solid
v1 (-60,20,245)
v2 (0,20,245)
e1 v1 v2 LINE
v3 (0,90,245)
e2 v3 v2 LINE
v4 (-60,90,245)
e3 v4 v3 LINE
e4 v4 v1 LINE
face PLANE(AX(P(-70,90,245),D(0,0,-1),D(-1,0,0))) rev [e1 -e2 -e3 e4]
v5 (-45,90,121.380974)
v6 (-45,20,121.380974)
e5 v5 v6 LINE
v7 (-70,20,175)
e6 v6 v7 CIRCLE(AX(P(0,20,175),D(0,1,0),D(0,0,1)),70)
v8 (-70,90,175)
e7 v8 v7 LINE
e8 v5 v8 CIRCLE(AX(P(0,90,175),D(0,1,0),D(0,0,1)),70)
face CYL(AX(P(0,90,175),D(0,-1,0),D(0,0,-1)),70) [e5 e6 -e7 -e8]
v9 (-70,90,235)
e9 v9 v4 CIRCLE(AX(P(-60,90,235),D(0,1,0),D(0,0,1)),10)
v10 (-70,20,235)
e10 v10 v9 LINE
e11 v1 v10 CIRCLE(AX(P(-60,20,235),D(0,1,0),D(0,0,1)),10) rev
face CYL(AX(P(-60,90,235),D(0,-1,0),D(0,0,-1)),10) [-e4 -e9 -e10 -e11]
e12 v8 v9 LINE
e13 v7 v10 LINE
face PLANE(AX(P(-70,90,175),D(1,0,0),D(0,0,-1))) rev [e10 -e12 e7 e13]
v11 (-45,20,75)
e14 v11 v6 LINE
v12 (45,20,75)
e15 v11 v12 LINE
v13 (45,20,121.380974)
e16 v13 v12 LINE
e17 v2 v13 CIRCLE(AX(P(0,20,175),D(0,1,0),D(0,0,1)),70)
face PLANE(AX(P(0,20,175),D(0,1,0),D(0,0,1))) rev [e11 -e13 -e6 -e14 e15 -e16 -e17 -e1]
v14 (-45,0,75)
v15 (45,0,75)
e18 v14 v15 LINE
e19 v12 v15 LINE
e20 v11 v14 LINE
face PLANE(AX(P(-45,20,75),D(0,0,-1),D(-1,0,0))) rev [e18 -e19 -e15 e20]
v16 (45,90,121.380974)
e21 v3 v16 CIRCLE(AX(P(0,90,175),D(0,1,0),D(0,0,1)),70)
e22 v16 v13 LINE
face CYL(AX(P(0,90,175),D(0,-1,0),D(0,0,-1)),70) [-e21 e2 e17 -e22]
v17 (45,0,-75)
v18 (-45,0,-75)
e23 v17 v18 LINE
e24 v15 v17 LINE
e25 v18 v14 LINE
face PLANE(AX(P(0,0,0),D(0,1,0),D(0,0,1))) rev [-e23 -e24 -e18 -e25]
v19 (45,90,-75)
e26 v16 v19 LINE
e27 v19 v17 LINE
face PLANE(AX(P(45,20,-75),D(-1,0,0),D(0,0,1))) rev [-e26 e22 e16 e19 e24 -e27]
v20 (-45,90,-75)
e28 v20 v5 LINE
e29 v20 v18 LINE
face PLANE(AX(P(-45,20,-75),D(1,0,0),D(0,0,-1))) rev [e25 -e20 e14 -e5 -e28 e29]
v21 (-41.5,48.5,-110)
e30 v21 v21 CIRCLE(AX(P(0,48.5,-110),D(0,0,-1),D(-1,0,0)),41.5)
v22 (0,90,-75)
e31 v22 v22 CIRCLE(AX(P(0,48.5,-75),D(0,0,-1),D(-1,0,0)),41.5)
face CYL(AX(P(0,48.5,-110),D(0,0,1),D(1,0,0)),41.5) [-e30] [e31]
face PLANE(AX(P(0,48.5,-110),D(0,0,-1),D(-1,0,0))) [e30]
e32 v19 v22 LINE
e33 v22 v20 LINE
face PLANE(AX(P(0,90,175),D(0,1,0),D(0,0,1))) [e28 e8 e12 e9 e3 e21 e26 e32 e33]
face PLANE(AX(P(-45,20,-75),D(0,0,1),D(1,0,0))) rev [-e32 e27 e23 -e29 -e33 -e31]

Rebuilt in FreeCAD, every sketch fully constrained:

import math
import FreeCAD as App
import Part
import Sketcher


def edges_at(feature, points):
    """Names of the edges that pass closest to the given points."""
    edges = feature.Shape.Edges
    near = lambda p: min(range(len(edges)), key=lambda i: edges[i].distToShape(Part.Vertex(*p))[0])
    return sorted({f"Edge{near(p) + 1}" for p in points})

doc = App.newDocument("Part")
body = doc.addObject("PartDesign::Body", "Body")

# Sketch on XZ plane
sketch1 = body.newObject("Sketcher::SketchObject", "Sketch")
sketch1.AttachmentSupport = (doc.getObject("XZ_Plane"), [""])
sketch1.MapMode = "FlatFace"
sketch1.addGeometry(Part.LineSegment(App.Vector(-45, -75, 0), App.Vector(-45, 75, 0)), False)
sketch1.addGeometry(Part.LineSegment(App.Vector(-45, 75, 0), App.Vector(45, 75, 0)), False)
sketch1.addGeometry(Part.LineSegment(App.Vector(45, 75, 0), App.Vector(45, -75, 0)), False)
sketch1.addGeometry(Part.LineSegment(App.Vector(45, -75, 0), App.Vector(-45, -75, 0)), False)
sketch1.addConstraint(Sketcher.Constraint("Coincident", 0, 2, 1, 1))
sketch1.addConstraint(Sketcher.Constraint("Coincident", 1, 2, 2, 1))
sketch1.addConstraint(Sketcher.Constraint("Coincident", 2, 2, 3, 1))
sketch1.addConstraint(Sketcher.Constraint("Coincident", 3, 2, 0, 1))
sketch1.addConstraint(Sketcher.Constraint("Vertical", 0))
sketch1.addConstraint(Sketcher.Constraint("Horizontal", 1))
sketch1.addConstraint(Sketcher.Constraint("Vertical", 2))
sketch1.addConstraint(Sketcher.Constraint("Horizontal", 3))
sketch1.addConstraint(Sketcher.Constraint("Symmetric", 0, 2, 2, 2, -1, 1))
sketch1.addConstraint(Sketcher.Constraint("DistanceX", 1, 1, 1, 2, 90.0))
sketch1.addConstraint(Sketcher.Constraint("DistanceY", 0, 1, 0, 2, 150.0))
pad1 = body.newObject("PartDesign::Pad", "Pad")
pad1.Profile = sketch1
pad1.Length = 20
pad1.Reversed = True

# Sketch on XZ plane
sketch2 = body.newObject("Sketcher::SketchObject", "Sketch001")
sketch2.AttachmentSupport = (doc.getObject("XZ_Plane"), [""])
sketch2.MapMode = "FlatFace"
sketch2.AttachmentOffset = App.Placement(App.Vector(0, 0, -20), App.Rotation())
sketch2.addGeometry(Part.LineSegment(App.Vector(45, -75, 0), App.Vector(-45, -75, 0)), False)
sketch2.addGeometry(Part.LineSegment(App.Vector(-45, -75, 0), App.Vector(-45, 121, 0)), False)
sketch2.addGeometry(Part.ArcOfCircle(Part.Circle(App.Vector(0, 175, 0), App.Vector(0, 0, 1), 70), math.radians(-180), math.radians(-130)), False)
sketch2.addGeometry(Part.LineSegment(App.Vector(-70, 175, 0), App.Vector(-70, 245, 0)), False)
sketch2.addGeometry(Part.LineSegment(App.Vector(-70, 245, 0), App.Vector(0, 245, 0)), False)
sketch2.addGeometry(Part.ArcOfCircle(Part.Circle(App.Vector(0, 175, 0), App.Vector(0, 0, 1), 70), math.radians(-50), math.radians(90)), False)
sketch2.addGeometry(Part.LineSegment(App.Vector(45, 121, 0), App.Vector(45, -75, 0)), False)
sketch2.addConstraint(Sketcher.Constraint("Coincident", 0, 2, 1, 1))
sketch2.addConstraint(Sketcher.Constraint("Coincident", 1, 2, 2, 2))
sketch2.addConstraint(Sketcher.Constraint("Tangent", 2, 1, 3, 1))
sketch2.addConstraint(Sketcher.Constraint("Coincident", 3, 2, 4, 1))
sketch2.addConstraint(Sketcher.Constraint("Tangent", 4, 2, 5, 2))
sketch2.addConstraint(Sketcher.Constraint("Coincident", 5, 1, 6, 1))
sketch2.addConstraint(Sketcher.Constraint("Coincident", 6, 2, 0, 1))
sketch2.addConstraint(Sketcher.Constraint("Horizontal", 0))
sketch2.addConstraint(Sketcher.Constraint("Vertical", 1))
sketch2.addConstraint(Sketcher.Constraint("Vertical", 3))
sketch2.addConstraint(Sketcher.Constraint("Horizontal", 4))
sketch2.addConstraint(Sketcher.Constraint("Vertical", 6))
sketch2.addConstraint(Sketcher.Constraint("Coincident", 5, 3, 2, 3))
sketch2.addConstraint(Sketcher.Constraint("Equal", 2, 5))
sketch2.addConstraint(Sketcher.Constraint("Symmetric", 1, 2, 5, 1, -2))
sketch2.addConstraint(Sketcher.Constraint("Radius", 2, 70.0))
sketch2.addConstraint(Sketcher.Constraint("DistanceX", 0, 2, 0, 1, 90.0))
sketch2.addConstraint(Sketcher.Constraint("DistanceY", -1, 1, 2, 3, 175.0))
sketch2.addConstraint(Sketcher.Constraint("DistanceY", 0, 2, -1, 1, 75.0))
pad2 = body.newObject("PartDesign::Pad", "Pad001")
pad2.Profile = sketch2
pad2.Length = 70
pad2.Reversed = True
doc.recompute()

fillet = body.newObject("PartDesign::Fillet", "Fillet")
fillet.Base = (pad2, edges_at(pad2, [(-70, 55, 245)]))
fillet.Radius = 10

# Sketch on XY plane
sketch3 = body.newObject("Sketcher::SketchObject", "Sketch002")
sketch3.AttachmentSupport = (doc.getObject("XY_Plane"), [""])
sketch3.MapMode = "FlatFace"
sketch3.AttachmentOffset = App.Placement(App.Vector(0, 0, -75), App.Rotation())
sketch3.addGeometry(Part.Circle(App.Vector(0, 48, 0), App.Vector(0, 0, 1), 42), False)
sketch3.addConstraint(Sketcher.Constraint("PointOnObject", 0, 3, -2))
sketch3.addConstraint(Sketcher.Constraint("Diameter", 0, 83.0))
sketch3.addConstraint(Sketcher.Constraint("DistanceY", -1, 1, 0, 3, 48.5))
pad3 = body.newObject("PartDesign::Pad", "Pad002")
pad3.Profile = sketch3
pad3.Length = 35
pad3.Reversed = True

doc.recompute()
